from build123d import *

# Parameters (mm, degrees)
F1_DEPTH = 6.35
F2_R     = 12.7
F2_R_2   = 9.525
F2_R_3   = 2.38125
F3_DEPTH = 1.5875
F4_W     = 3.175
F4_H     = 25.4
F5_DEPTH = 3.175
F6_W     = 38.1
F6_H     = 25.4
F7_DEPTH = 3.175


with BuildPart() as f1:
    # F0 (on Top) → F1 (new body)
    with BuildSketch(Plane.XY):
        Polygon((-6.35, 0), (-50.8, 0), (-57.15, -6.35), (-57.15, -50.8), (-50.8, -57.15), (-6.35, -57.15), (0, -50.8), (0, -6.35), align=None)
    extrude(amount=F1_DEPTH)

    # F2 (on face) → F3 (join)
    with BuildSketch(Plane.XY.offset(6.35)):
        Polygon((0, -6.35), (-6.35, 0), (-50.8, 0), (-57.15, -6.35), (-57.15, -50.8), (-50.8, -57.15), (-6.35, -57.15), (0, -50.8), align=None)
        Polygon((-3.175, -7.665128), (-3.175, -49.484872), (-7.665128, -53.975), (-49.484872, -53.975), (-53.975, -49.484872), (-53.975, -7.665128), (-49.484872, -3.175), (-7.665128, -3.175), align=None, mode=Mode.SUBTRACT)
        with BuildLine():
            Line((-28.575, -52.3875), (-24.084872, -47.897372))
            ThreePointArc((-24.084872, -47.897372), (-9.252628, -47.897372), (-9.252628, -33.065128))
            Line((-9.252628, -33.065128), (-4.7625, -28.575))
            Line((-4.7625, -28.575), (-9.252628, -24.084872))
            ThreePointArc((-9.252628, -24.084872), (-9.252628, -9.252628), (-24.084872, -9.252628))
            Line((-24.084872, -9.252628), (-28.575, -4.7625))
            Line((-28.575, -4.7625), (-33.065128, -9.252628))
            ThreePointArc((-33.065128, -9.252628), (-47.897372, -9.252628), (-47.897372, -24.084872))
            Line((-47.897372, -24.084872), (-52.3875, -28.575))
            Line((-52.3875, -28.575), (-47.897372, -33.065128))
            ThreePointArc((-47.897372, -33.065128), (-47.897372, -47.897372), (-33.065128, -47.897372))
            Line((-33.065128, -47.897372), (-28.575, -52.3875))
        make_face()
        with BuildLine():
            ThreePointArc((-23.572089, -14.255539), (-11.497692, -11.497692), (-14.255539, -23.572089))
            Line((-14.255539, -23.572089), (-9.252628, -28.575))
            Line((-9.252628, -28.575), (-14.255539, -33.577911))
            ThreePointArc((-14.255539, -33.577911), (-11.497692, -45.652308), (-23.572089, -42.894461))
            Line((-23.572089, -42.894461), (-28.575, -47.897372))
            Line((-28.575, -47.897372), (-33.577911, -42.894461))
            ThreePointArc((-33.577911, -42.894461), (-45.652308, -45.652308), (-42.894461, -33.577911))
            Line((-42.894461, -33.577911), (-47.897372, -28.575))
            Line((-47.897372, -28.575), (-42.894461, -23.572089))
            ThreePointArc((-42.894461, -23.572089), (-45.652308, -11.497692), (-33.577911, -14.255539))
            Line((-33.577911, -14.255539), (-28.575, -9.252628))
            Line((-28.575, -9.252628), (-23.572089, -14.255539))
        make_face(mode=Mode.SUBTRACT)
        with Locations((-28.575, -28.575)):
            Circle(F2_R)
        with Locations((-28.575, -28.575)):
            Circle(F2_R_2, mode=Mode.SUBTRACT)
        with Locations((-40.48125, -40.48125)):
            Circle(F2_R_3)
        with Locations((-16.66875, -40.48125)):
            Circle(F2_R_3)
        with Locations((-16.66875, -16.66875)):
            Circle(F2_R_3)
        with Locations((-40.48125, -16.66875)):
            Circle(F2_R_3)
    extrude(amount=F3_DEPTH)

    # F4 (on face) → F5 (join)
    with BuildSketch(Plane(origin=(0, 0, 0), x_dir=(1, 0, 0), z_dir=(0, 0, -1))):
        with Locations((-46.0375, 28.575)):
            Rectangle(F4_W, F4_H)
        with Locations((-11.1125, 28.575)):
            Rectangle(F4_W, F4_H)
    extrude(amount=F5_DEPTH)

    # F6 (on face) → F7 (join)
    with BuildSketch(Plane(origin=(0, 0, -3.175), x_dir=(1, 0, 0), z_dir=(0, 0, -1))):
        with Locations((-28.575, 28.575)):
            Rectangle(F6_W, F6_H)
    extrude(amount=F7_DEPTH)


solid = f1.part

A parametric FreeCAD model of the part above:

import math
import FreeCAD as App
import Part
import Sketcher

V = App.Vector
Q = App.Units.Quantity

doc = App.newDocument("Part")
body = doc.addObject("PartDesign::Body", "Body")

sketch1 = doc.addObject("Sketcher::SketchObject", "Sketch")
body.addObject(sketch1)
sketch1.AttachmentSupport = (doc.XY_Plane, [""])
sketch1.MapMode = "FlatFace"
sketch1.addGeometry([
    Part.LineSegment(V(-6, 0, 0), V(-51, 0, 0)),
    Part.LineSegment(V(-51, 0, 0), V(-57, -6, 0)),
    Part.LineSegment(V(-57, -6, 0), V(-57, -51, 0)),
    Part.LineSegment(V(-57, -51, 0), V(-51, -57, 0)),
    Part.LineSegment(V(-51, -57, 0), V(-6, -57, 0)),
    Part.LineSegment(V(-6, -57, 0), V(0, -51, 0)),
    Part.LineSegment(V(0, -51, 0), V(0, -6, 0)),
    Part.LineSegment(V(0, -6, 0), V(-6, 0, 0)),
], False)
sketch1.addConstraint([
    Sketcher.Constraint("Coincident", 0, 2, 1, 1),
    Sketcher.Constraint("Coincident", 1, 2, 2, 1),
    Sketcher.Constraint("Coincident", 2, 2, 3, 1),
    Sketcher.Constraint("Coincident", 3, 2, 4, 1),
    Sketcher.Constraint("Coincident", 4, 2, 5, 1),
    Sketcher.Constraint("Coincident", 5, 2, 6, 1),
    Sketcher.Constraint("Coincident", 6, 2, 7, 1),
    Sketcher.Constraint("Coincident", 7, 2, 0, 1),
    Sketcher.Constraint("Horizontal", 0),
    Sketcher.Constraint("Vertical", 2),
    Sketcher.Constraint("Horizontal", 4),
    Sketcher.Constraint("Vertical", 6),
    Sketcher.Constraint("PointOnObject", 0, 2, -1),
    Sketcher.Constraint("PointOnObject", 5, 2, -2),
    Sketcher.Constraint("Perpendicular", 1, 3),
    Sketcher.Constraint("Perpendicular", 3, 5),
    Sketcher.Constraint("Perpendicular", 5, 7),
    Sketcher.Constraint("Horizontal", 2, 2, 5, 2),
    Sketcher.Constraint("Horizontal", 1, 2, 6, 2),
    Sketcher.Constraint("Vertical", 0, 2, 3, 2),
    Sketcher.Constraint("Vertical", 4, 2, 7, 2),
    Sketcher.Constraint("Equal", 4, 2),
    Sketcher.Constraint("DistanceX", 0, 2, -1, 1, Q("2 in")),
    Sketcher.Constraint("DistanceX", 0, 2, 0, 1, Q("1.75 in")),
])
pad1 = doc.addObject("PartDesign::Pad", "Pad")
body.addObject(pad1)
pad1.Profile = sketch1
pad1.Length = Q("0.25 in")

sketch2 = doc.addObject("Sketcher::SketchObject", "Sketch001")
body.addObject(sketch2)
sketch2.AttachmentSupport = (doc.XY_Plane, [""])
sketch2.MapMode = "FlatFace"
sketch2.AttachmentOffset = App.Placement(V(0, 0, 0.25 * 25.4), App.Rotation())
sketch2.addGeometry([
    Part.LineSegment(V(0, -6.3, 0), V(-6.3, 0, 0)),
    Part.LineSegment(V(-6.3, 0, 0), V(-50.8, 0, 0)),
    Part.LineSegment(V(-50.8, 0, 0), V(-57.1, -6.3, 0)),
    Part.LineSegment(V(-57.1, -6.3, 0), V(-57.1, -50.8, 0)),
    Part.LineSegment(V(-57.1, -50.8, 0), V(-50.8, -57.1, 0)),
    Part.LineSegment(V(-50.8, -57.1, 0), V(-6.3, -57.1, 0)),
    Part.LineSegment(V(-6.3, -57.1, 0), V(0, -50.8, 0)),
    Part.LineSegment(V(0, -50.8, 0), V(0, -6.3, 0)),
    Part.LineSegment(V(-7.7, -3.2, 0), V(-3.2, -7.7, 0)),
    Part.LineSegment(V(-3.2, -7.7, 0), V(-3.2, -49.5, 0)),
    Part.LineSegment(V(-3.2, -49.5, 0), V(-7.7, -54, 0)),
    Part.LineSegment(V(-7.7, -54, 0), V(-49.5, -54, 0)),
    Part.LineSegment(V(-49.5, -54, 0), V(-54, -49.5, 0)),
    Part.LineSegment(V(-54, -49.5, 0), V(-54, -7.7, 0)),
    Part.LineSegment(V(-54, -7.7, 0), V(-49.5, -3.2, 0)),
    Part.LineSegment(V(-49.5, -3.2, 0), V(-7.7, -3.2, 0)),
    Part.LineSegment(V(-28.6, -52.4, 0), V(-24.1, -47.9, 0)),
    Part.ArcOfCircle(Part.Circle(V(-16.7, -40.5, 0), V(0, 0, 1), 10.5), math.radians(-135), math.radians(45)),
    Part.LineSegment(V(-9.3, -33.1, 0), V(-4.8, -28.6, 0)),
    Part.LineSegment(V(-4.8, -28.6, 0), V(-9.3, -24.1, 0)),
    Part.ArcOfCircle(Part.Circle(V(-16.7, -16.7, 0), V(0, 0, 1), 10.5), math.radians(-45), math.radians(135)),
    Part.LineSegment(V(-24.1, -9.3, 0), V(-28.6, -4.8, 0)),
    Part.LineSegment(V(-28.6, -4.8, 0), V(-33.1, -9.3, 0)),
    Part.ArcOfCircle(Part.Circle(V(-40.5, -16.7, 0), V(0, 0, 1), 10.5), math.radians(45), math.radians(225)),
    Part.LineSegment(V(-47.9, -24.1, 0), V(-52.4, -28.6, 0)),
    Part.LineSegment(V(-52.4, -28.6, 0), V(-47.9, -33.1, 0)),
    Part.ArcOfCircle(Part.Circle(V(-40.5, -40.5, 0), V(0, 0, 1), 10.5), math.radians(135), math.radians(315)),
    Part.LineSegment(V(-33.1, -47.9, 0), V(-28.6, -52.4, 0)),
    Part.LineSegment(V(-28.6, -9.3, 0), V(-23.6, -14.3, 0)),
    Part.ArcOfCircle(Part.Circle(V(-16.7, -16.7, 0), V(0, 0, 1), 7.3), math.radians(-71), math.radians(161)),
    Part.LineSegment(V(-14.3, -23.6, 0), V(-9.3, -28.6, 0)),
    Part.LineSegment(V(-9.3, -28.6, 0), V(-14.3, -33.6, 0)),
    Part.ArcOfCircle(Part.Circle(V(-16.7, -40.5, 0), V(0, 0, 1), 7.3), math.radians(-161), math.radians(71)),
    Part.LineSegment(V(-23.6, -42.9, 0), V(-28.6, -47.9, 0)),
    Part.LineSegment(V(-28.6, -47.9, 0), V(-33.6, -42.9, 0)),
    Part.ArcOfCircle(Part.Circle(V(-40.5, -40.5, 0), V(0, 0, 1), 7.3), math.radians(109), math.radians(341)),
    Part.LineSegment(V(-42.9, -33.6, 0), V(-47.9, -28.6, 0)),
    Part.LineSegment(V(-47.9, -28.6, 0), V(-42.9, -23.6, 0)),
    Part.ArcOfCircle(Part.Circle(V(-40.5, -16.7, 0), V(0, 0, 1), 7.3), math.radians(19), math.radians(251)),
    Part.LineSegment(V(-33.6, -14.3, 0), V(-28.6, -9.3, 0)),
    Part.Circle(V(-28.6, -28.6, 0), V(0, 0, 1), 12.7),
    Part.Circle(V(-28.6, -28.6, 0), V(0, 0, 1), 9.5),
    Part.Circle(V(-40.5, -40.5, 0), V(0, 0, 1), 2.4),
    Part.Circle(V(-16.7, -40.5, 0), V(0, 0, 1), 2.4),
    Part.Circle(V(-16.7, -16.7, 0), V(0, 0, 1), 2.4),
    Part.Circle(V(-40.5, -16.7, 0), V(0, 0, 1), 2.4),
], False)
sketch2.addConstraint([
    Sketcher.Constraint("Coincident", 0, 2, 1, 1),
    Sketcher.Constraint("Coincident", 1, 2, 2, 1),
    Sketcher.Constraint("Coincident", 2, 2, 3, 1),
    Sketcher.Constraint("Coincident", 3, 2, 4, 1),
    Sketcher.Constraint("Coincident", 4, 2, 5, 1),
    Sketcher.Constraint("Coincident", 5, 2, 6, 1),
    Sketcher.Constraint("Coincident", 6, 2, 7, 1),
    Sketcher.Constraint("Coincident", 7, 2, 0, 1),
    Sketcher.Constraint("Coincident", 8, 2, 9, 1),
    Sketcher.Constraint("Coincident", 9, 2, 10, 1),
    Sketcher.Constraint("Coincident", 10, 2, 11, 1),
    Sketcher.Constraint("Coincident", 11, 2, 12, 1),
    Sketcher.Constraint("Coincident", 12, 2, 13, 1),
    Sketcher.Constraint("Coincident", 13, 2, 14, 1),
    Sketcher.Constraint("Coincident", 14, 2, 15, 1),
    Sketcher.Constraint("Coincident", 15, 2, 8, 1),
    Sketcher.Constraint("Coincident", 16, 2, 17, 1),
    Sketcher.Constraint("Coincident", 17, 2, 18, 1),
    Sketcher.Constraint("Coincident", 18, 2, 19, 1),
    Sketcher.Constraint("Coincident", 19, 2, 20, 1),
    Sketcher.Constraint("Coincident", 20, 2, 21, 1),
    Sketcher.Constraint("Coincident", 21, 2, 22, 1),
    Sketcher.Constraint("Coincident", 22, 2, 23, 1),
    Sketcher.Constraint("Coincident", 23, 2, 24, 1),
    Sketcher.Constraint("Coincident", 24, 2, 25, 1),
    Sketcher.Constraint("Coincident", 25, 2, 26, 1),
    Sketcher.Constraint("Coincident", 26, 2, 27, 1),
    Sketcher.Constraint("Coincident", 27, 2, 16, 1),
    Sketcher.Constraint("Coincident", 28, 2, 29, 2),
    Sketcher.Constraint("Coincident", 29, 1, 30, 1),
    Sketcher.Constraint("Coincident", 30, 2, 31, 1),
    Sketcher.Constraint("Coincident", 31, 2, 32, 2),
    Sketcher.Constraint("Coincident", 32, 1, 33, 1),
    Sketcher.Constraint("Coincident", 33, 2, 34, 1),
    Sketcher.Constraint("Coincident", 34, 2, 35, 2),
    Sketcher.Constraint("Coincident", 35, 1, 36, 1),
    Sketcher.Constraint("Coincident", 36, 2, 37, 1),
    Sketcher.Constraint("Coincident", 37, 2, 38, 2),
    Sketcher.Constraint("Coincident", 38, 1, 39, 1),
    Sketcher.Constraint("Coincident", 39, 2, 28, 1),
    Sketcher.Constraint("Horizontal", 1),
    Sketcher.Constraint("Vertical", 3),
    Sketcher.Constraint("Horizontal", 5),
    Sketcher.Constraint("Vertical", 7),
    Sketcher.Constraint("Vertical", 9),
    Sketcher.Constraint("Horizontal", 11),
    Sketcher.Constraint("Vertical", 13),
    Sketcher.Constraint("Horizontal", 15),
    Sketcher.Constraint("Coincident", 29, 3, 20, 3),
    Sketcher.Constraint("Coincident", 32, 3, 17, 3),
    Sketcher.Constraint("Coincident", 35, 3, 26, 3),
    Sketcher.Constraint("Coincident", 38, 3, 23, 3),
    Sketcher.Constraint("Coincident", 41, 3, 40, 3),
    Sketcher.Constraint("Coincident", 42, 3, 26, 3),
    Sketcher.Constraint("Coincident", 43, 3, 17, 3),
    Sketcher.Constraint("Coincident", 44, 3, 20, 3),
    Sketcher.Constraint("Coincident", 45, 3, 23, 3),
    Sketcher.Constraint("Equal", 17, 20),
    Sketcher.Constraint("Equal", 20, 23),
    Sketcher.Constraint("Equal", 23, 26),
    Sketcher.Constraint("Equal", 29, 32),
    Sketcher.Constraint("Equal", 32, 35),
    Sketcher.Constraint("Equal", 35, 38),
    Sketcher.Constraint("Equal", 42, 43),
    Sketcher.Constraint("Equal", 43, 44),
    Sketcher.Constraint("Equal", 44, 45),
    Sketcher.Constraint("PointOnObject", 0, 2, -1),
    Sketcher.Constraint("PointOnObject", 6, 2, -2),
    Sketcher.Constraint("Perpendicular", 0, 2),
    Sketcher.Constraint("Perpendicular", 2, 4),
    Sketcher.Constraint("Perpendicular", 4, 6),
    Sketcher.Constraint("Perpendicular", 6, 8),
    Sketcher.Constraint("Perpendicular", 8, 10),
    Sketcher.Constraint("Perpendicular", 10, 12),
    Sketcher.Constraint("Perpendicular", 12, 14),
    Sketcher.Constraint("Parallel", 14, 16),
    Sketcher.Constraint("Parallel", 16, 18),
    Sketcher.Constraint("Perpendicular", 18, 19),
    Sketcher.Constraint("Parallel", 19, 21),
    Sketcher.Constraint("Perpendicular", 21, 22),
    Sketcher.Constraint("Parallel", 22, 24),
    Sketcher.Constraint("Perpendicular", 24, 25),
    Sketcher.Constraint("Parallel", 25, 27),
    Sketcher.Constraint("Parallel", 27, 28),
    Sketcher.Constraint("Parallel", 28, 30),
    Sketcher.Constraint("Perpendicular", 30, 31),
    Sketcher.Constraint("Parallel", 31, 33),
    Sketcher.Constraint("Perpendicular", 33, 34),
    Sketcher.Constraint("Parallel", 34, 36),
    Sketcher.Constraint("Perpendicular", 36, 37),
    Sketcher.Constraint("Parallel", 37, 39),
    Sketcher.Constraint("Horizontal", 20, 3, 23, 3),
    Sketcher.Constraint("Horizontal", 17, 3, 26, 3),
    Sketcher.Constraint("Horizontal", 3, 2, 6, 2),
    Sketcher.Constraint("Horizontal", 2, 2, 7, 2),
    Sketcher.Constraint("Horizontal", 9, 2, 12, 2),
    Sketcher.Constraint("Horizontal", 8, 2, 13, 2),
    Sketcher.Constraint("Horizontal", 41, 3, 18, 2),
    Sketcher.Constraint("Horizontal", 20, 2, 22, 2),
    Sketcher.Constraint("Horizontal", 19, 2, 23, 2),
    Sketcher.Constraint("Horizontal", 18, 2, 24, 2),
    Sketcher.Constraint("Horizontal", 17, 2, 25, 2),
    Sketcher.Constraint("Horizontal", 16, 2, 26, 2),
    Sketcher.Constraint("Horizontal", 24, 2, 30, 2),
    Sketcher.Constraint("Horizontal", 26, 2, 33, 2),
    Sketcher.Constraint("Horizontal", 32, 1, 34, 2),
    Sketcher.Constraint("Horizontal", 31, 2, 35, 1),
    Sketcher.Constraint("Horizontal", 30, 2, 36, 2),
    Sketcher.Constraint("Horizontal", 29, 1, 37, 2),
    Sketcher.Constraint("Horizontal", 28, 2, 38, 1),
    Sketcher.Constraint("Horizontal", 22, 2, 39, 2),
    Sketcher.Constraint("Vertical", 17, 3, 20, 3),
    Sketcher.Constraint("Vertical", 1, 2, 4, 2),
    Sketcher.Constraint("Vertical", 11, 2, 14, 2),
    Sketcher.Constraint("Vertical", 17, 2, 19, 2),
    Sketcher.Constraint("Vertical", 16, 2, 20, 2),
    Sketcher.Constraint("Vertical", 41, 3, 21, 2),
    Sketcher.Constraint("Vertical", 19, 2, 30, 2),
    Sketcher.Constraint("Equal", 5, 3),
    Sketcher.Constraint("Equal", 15, 9),
    Sketcher.Constraint("Equal", 14, 16),
    Sketcher.Constraint("Equal", 16, 18),
    Sketcher.Constraint("Equal", 28, 30),
    Sketcher.Constraint("Diameter", 40, Q("1 in")),
    Sketcher.Constraint("Diameter", 41, Q("0.75 in")),
    Sketcher.Constraint("Diameter", 42, Q("0.1875 in")),
    Sketcher.Constraint("DistanceX", 1, 2, -1, 1, Q("2 in")),
    Sketcher.Constraint("DistanceX", 1, 2, 1, 1, Q("1.75 in")),
    Sketcher.Constraint("Distance", 8, Q("0.25 in")),
    Sketcher.Constraint("DistanceX", 17, 3, -1, 1, Q("0.65625 in")),
    Sketcher.Constraint("DistanceY", 17, 3, -1, 1, Q("1.59375 in")),
    Sketcher.Constraint("DistanceY", 20, 3, -1, 1, Q("0.65625 in")),
    Sketcher.Constraint("DistanceX", 8, 2, -1, 1, Q("0.125 in")),
    Sketcher.Constraint("DistanceY", 10, 2, -1, 1, Q("2.125 in")),
    Sketcher.Constraint("DistanceX", 12, 2, -1, 1, Q("2.125 in")),
    Sketcher.Constraint("DistanceX", 18, 2, -1, 1, Q("0.1875 in")),
    Sketcher.Constraint("Radius", 29, Q("7.31298 mm")),
])
pad2 = doc.addObject("PartDesign::Pad", "Pad001")
body.addObject(pad2)
pad2.Profile = sketch2
pad2.Length = Q("0.0625 in")

sketch3 = doc.addObject("Sketcher::SketchObject", "Sketch002")
body.addObject(sketch3)
sketch3.AttachmentSupport = (doc.XY_Plane, [""])
sketch3.MapMode = "FlatFace"
sketch3.addGeometry([
    Part.LineSegment(V(-47.6, -41.3, 0), V(-47.6, -15.9, 0)),
    Part.LineSegment(V(-47.6, -15.9, 0), V(-44.5, -15.9, 0)),
    Part.LineSegment(V(-44.5, -15.9, 0), V(-44.5, -41.3, 0)),
    Part.LineSegment(V(-44.5, -41.3, 0), V(-47.6, -41.3, 0)),
    Part.LineSegment(V(-12.7, -41.3, 0), V(-12.7, -15.9, 0)),
    Part.LineSegment(V(-12.7, -15.9, 0), V(-9.5, -15.9, 0)),
    Part.LineSegment(V(-9.5, -15.9, 0), V(-9.5, -41.3, 0)),
    Part.LineSegment(V(-9.5, -41.3, 0), V(-12.7, -41.3, 0)),
], False)
sketch3.addConstraint([
    Sketcher.Constraint("Coincident", 0, 2, 1, 1),
    Sketcher.Constraint("Coincident", 1, 2, 2, 1),
    Sketcher.Constraint("Coincident", 2, 2, 3, 1),
    Sketcher.Constraint("Coincident", 3, 2, 0, 1),
    Sketcher.Constraint("Coincident", 4, 2, 5, 1),
    Sketcher.Constraint("Coincident", 5, 2, 6, 1),
    Sketcher.Constraint("Coincident", 6, 2, 7, 1),
    Sketcher.Constraint("Coincident", 7, 2, 4, 1),
    Sketcher.Constraint("Vertical", 0),
    Sketcher.Constraint("Horizontal", 1),
    Sketcher.Constraint("Vertical", 2),
    Sketcher.Constraint("Horizontal", 3),
    Sketcher.Constraint("Vertical", 4),
    Sketcher.Constraint("Horizontal", 5),
    Sketcher.Constraint("Vertical", 6),
    Sketcher.Constraint("Horizontal", 7),
    Sketcher.Constraint("Horizontal", 1, 2, 4, 2),
    Sketcher.Constraint("Horizontal", 3, 2, 6, 2),
    Sketcher.Constraint("Equal", 3, 5),
    Sketcher.Constraint("DistanceY", 0, 1, 0, 2, Q("1 in")),
    Sketcher.Constraint("DistanceX", 4, 2, -1, 1, Q("0.5 in")),
    Sketcher.Constraint("DistanceX", 0, 2, 5, 2, Q("1.5 in")),
    Sketcher.Constraint("DistanceX", 1, 1, 1, 2, Q("0.125 in")),
    Sketcher.Constraint("DistanceY", 0, 2, -1, 1, Q("0.625 in")),
])
pad3 = doc.addObject("PartDesign::Pad", "Pad002")
body.addObject(pad3)
pad3.Profile = sketch3
pad3.Length = Q("0.125 in")
pad3.Reversed = True

sketch4 = doc.addObject("Sketcher::SketchObject", "Sketch003")
body.addObject(sketch4)
sketch4.AttachmentSupport = (doc.XY_Plane, [""])
sketch4.MapMode = "FlatFace"
sketch4.AttachmentOffset = App.Placement(V(0, 0, -0.125 * 25.4), App.Rotation())
sketch4.addGeometry([
    Part.LineSegment(V(-48, -41, 0), V(-48, -16, 0)),
    Part.LineSegment(V(-48, -16, 0), V(-10, -16, 0)),
    Part.LineSegment(V(-10, -16, 0), V(-10, -41, 0)),
    Part.LineSegment(V(-10, -41, 0), V(-48, -41, 0)),
], False)
sketch4.addConstraint([
    Sketcher.Constraint("Coincident", 0, 2, 1, 1),
    Sketcher.Constraint("Coincident", 1, 2, 2, 1),
    Sketcher.Constraint("Coincident", 2, 2, 3, 1),
    Sketcher.Constraint("Coincident", 3, 2, 0, 1),
    Sketcher.Constraint("Vertical", 0),
    Sketcher.Constraint("Horizontal", 1),
    Sketcher.Constraint("Vertical", 2),
    Sketcher.Constraint("Horizontal", 3),
    Sketcher.Constraint("DistanceY", 0, 1, 0, 2, Q("1 in")),
    Sketcher.Constraint("DistanceX", 1, 1, 1, 2, Q("1.5 in")),
    Sketcher.Constraint("DistanceX", 0, 2, -1, 1, Q("1.875 in")),
    Sketcher.Constraint("DistanceY", 0, 2, -1, 1, Q("0.625 in")),
])
pad4 = doc.addObject("PartDesign::Pad", "Pad003")
body.addObject(pad4)
pad4.Profile = sketch4
pad4.Length = Q("0.125 in")
pad4.Reversed = True

doc.recompute()
